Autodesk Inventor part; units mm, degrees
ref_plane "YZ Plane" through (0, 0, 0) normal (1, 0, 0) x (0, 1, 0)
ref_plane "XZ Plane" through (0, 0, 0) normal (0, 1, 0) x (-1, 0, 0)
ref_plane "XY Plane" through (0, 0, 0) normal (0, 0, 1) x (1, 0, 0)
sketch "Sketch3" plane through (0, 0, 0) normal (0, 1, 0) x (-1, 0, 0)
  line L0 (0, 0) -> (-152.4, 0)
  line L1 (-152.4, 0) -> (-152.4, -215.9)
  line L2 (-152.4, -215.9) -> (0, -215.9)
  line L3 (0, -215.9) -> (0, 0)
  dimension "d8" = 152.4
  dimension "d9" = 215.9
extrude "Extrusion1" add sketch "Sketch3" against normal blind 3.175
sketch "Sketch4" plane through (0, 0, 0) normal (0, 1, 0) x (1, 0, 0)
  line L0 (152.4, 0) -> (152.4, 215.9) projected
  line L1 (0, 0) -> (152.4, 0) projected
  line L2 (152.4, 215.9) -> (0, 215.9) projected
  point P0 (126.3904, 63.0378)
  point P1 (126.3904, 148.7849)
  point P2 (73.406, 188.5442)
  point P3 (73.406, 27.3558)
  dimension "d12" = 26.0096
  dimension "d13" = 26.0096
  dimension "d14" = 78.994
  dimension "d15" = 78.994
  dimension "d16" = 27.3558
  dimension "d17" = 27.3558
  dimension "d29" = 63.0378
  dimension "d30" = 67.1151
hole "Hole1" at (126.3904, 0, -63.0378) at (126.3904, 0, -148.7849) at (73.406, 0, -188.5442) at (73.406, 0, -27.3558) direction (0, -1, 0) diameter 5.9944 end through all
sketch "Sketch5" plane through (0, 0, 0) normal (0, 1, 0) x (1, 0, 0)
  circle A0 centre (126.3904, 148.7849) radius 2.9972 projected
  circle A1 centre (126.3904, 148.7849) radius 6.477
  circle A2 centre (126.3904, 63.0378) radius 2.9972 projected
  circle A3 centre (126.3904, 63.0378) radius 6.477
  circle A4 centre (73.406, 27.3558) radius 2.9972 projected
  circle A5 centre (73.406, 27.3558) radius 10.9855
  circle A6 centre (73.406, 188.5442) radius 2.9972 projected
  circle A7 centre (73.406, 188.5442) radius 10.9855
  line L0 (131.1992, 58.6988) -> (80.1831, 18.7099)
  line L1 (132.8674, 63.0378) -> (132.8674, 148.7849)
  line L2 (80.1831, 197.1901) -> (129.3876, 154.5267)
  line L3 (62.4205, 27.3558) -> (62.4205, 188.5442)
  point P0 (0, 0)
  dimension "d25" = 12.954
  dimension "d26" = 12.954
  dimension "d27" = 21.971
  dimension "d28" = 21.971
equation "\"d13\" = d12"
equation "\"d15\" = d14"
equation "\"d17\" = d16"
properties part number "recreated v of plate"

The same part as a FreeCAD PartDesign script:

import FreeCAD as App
import Part
import Sketcher
Q = App.Units.Quantity


def add_polygon(sketch, points):
    """Adds a closed chain of lines whose ends are joined by coincident constraints."""
    first, n = sketch.GeometryCount, len(points)
    for a, b in zip(points, points[1:] + points[:1]):
        sketch.addGeometry(Part.LineSegment(App.Vector(*a, 0), App.Vector(*b, 0)), False)
    for i in range(n):
        sketch.addConstraint(Sketcher.Constraint("Coincident", first + i, 2, first + (i + 1) % n, 1))

doc = App.newDocument("Part")
params = doc.addObject("Spreadsheet::Sheet", "Params")
for row, (alias, value) in enumerate([
    ("sketch1_width", "6 in"),
    ("sketch1_height", "8.5 in"),
    ("pad1_length", "0.125 in"),
    ("sketch2_diameter", "0.236 in"),
    ("hole_diameter", "0.236 in"),
], start=1):
    params.set(f"A{row}", alias)
    params.set(f"B{row}", "=" + value)
    params.setAlias(f"B{row}", alias)

body = doc.addObject("PartDesign::Body", "Body")

# Sketch on XZ plane
sketch1 = doc.addObject("Sketcher::SketchObject", "Sketch")
body.addObject(sketch1)
sketch1.AttachmentSupport = (doc.XZ_Plane, [""])
sketch1.MapMode = "FlatFace"
add_polygon(sketch1, [(0, -215.9), (0, 0), (152.4, 0), (152.4, -215.9)])  # lines 0-3
sketch1.addConstraint(Sketcher.Constraint("Vertical", 0))
sketch1.addConstraint(Sketcher.Constraint("Horizontal", 1))
sketch1.addConstraint(Sketcher.Constraint("Vertical", 2))
sketch1.addConstraint(Sketcher.Constraint("Horizontal", 3))
sketch1.addConstraint(Sketcher.Constraint("Coincident", 0, 2, -1, 1))
sketch1.addConstraint(Sketcher.Constraint("DistanceX", 1, 1, 1, 2, Q("6 in")))
sketch1.addConstraint(Sketcher.Constraint("DistanceY", 0, 1, 0, 2, Q("8.5 in")))
sketch1.setExpression("Constraints[9]", "Params.sketch1_width")
sketch1.setExpression("Constraints[10]", "Params.sketch1_height")
pad1 = doc.addObject("PartDesign::Pad", "Pad")
body.addObject(pad1)
pad1.Profile = sketch1
pad1.setExpression("Length", "Params.pad1_length")

# Sketch on XZ plane
sketch2 = doc.addObject("Sketcher::SketchObject", "Sketch001")
body.addObject(sketch2)
sketch2.AttachmentSupport = (doc.XZ_Plane, [""])
sketch2.MapMode = "FlatFace"
sketch2.addGeometry(Part.Circle(App.Vector(126.3904, -63.0378, 0), App.Vector(0, 0, 1), 2.9972), False)
sketch2.addGeometry(Part.Circle(App.Vector(126.3904, -148.7849, 0), App.Vector(0, 0, 1), 2.9972), False)
sketch2.addGeometry(Part.Circle(App.Vector(73.406, -188.5442, 0), App.Vector(0, 0, 1), 2.9972), False)
sketch2.addGeometry(Part.Circle(App.Vector(73.406, -27.3558, 0), App.Vector(0, 0, 1), 2.9972), False)
sketch2.addConstraint(Sketcher.Constraint("Equal", 0, 1))
sketch2.addConstraint(Sketcher.Constraint("Equal", 1, 2))
sketch2.addConstraint(Sketcher.Constraint("Equal", 2, 3))
sketch2.addConstraint(Sketcher.Constraint("Vertical", 0, 3, 1, 3))
sketch2.addConstraint(Sketcher.Constraint("Vertical", 2, 3, 3, 3))
sketch2.addConstraint(Sketcher.Constraint("Diameter", 0, Q("0.236 in")))
sketch2.addConstraint(Sketcher.Constraint("DistanceX", -1, 1, 2, 3, Q("2.89 in")))
sketch2.addConstraint(Sketcher.Constraint("DistanceX", -1, 1, 0, 3, Q("4.976 in")))
sketch2.addConstraint(Sketcher.Constraint("DistanceY", 2, 3, -1, 1, Q("7.423 in")))
sketch2.addConstraint(Sketcher.Constraint("DistanceY", 3, 3, -1, 1, Q("1.077 in")))
sketch2.addConstraint(Sketcher.Constraint("DistanceY", 0, 3, -1, 1, Q("2.4818 in")))
sketch2.addConstraint(Sketcher.Constraint("DistanceY", 1, 3, -1, 1, Q("148.785 mm")))
sketch2.setExpression("Constraints[5]", "Params.sketch2_diameter")
doc.recompute()
hole = doc.addObject("PartDesign::Hole", "Hole")
body.addObject(hole)
hole.Profile = sketch2
hole.ThreadType = "None"
hole.setExpression("Diameter", "Params.hole_diameter")
hole.DepthType = "ThroughAll"
hole.Reversed = True

doc.recompute()
